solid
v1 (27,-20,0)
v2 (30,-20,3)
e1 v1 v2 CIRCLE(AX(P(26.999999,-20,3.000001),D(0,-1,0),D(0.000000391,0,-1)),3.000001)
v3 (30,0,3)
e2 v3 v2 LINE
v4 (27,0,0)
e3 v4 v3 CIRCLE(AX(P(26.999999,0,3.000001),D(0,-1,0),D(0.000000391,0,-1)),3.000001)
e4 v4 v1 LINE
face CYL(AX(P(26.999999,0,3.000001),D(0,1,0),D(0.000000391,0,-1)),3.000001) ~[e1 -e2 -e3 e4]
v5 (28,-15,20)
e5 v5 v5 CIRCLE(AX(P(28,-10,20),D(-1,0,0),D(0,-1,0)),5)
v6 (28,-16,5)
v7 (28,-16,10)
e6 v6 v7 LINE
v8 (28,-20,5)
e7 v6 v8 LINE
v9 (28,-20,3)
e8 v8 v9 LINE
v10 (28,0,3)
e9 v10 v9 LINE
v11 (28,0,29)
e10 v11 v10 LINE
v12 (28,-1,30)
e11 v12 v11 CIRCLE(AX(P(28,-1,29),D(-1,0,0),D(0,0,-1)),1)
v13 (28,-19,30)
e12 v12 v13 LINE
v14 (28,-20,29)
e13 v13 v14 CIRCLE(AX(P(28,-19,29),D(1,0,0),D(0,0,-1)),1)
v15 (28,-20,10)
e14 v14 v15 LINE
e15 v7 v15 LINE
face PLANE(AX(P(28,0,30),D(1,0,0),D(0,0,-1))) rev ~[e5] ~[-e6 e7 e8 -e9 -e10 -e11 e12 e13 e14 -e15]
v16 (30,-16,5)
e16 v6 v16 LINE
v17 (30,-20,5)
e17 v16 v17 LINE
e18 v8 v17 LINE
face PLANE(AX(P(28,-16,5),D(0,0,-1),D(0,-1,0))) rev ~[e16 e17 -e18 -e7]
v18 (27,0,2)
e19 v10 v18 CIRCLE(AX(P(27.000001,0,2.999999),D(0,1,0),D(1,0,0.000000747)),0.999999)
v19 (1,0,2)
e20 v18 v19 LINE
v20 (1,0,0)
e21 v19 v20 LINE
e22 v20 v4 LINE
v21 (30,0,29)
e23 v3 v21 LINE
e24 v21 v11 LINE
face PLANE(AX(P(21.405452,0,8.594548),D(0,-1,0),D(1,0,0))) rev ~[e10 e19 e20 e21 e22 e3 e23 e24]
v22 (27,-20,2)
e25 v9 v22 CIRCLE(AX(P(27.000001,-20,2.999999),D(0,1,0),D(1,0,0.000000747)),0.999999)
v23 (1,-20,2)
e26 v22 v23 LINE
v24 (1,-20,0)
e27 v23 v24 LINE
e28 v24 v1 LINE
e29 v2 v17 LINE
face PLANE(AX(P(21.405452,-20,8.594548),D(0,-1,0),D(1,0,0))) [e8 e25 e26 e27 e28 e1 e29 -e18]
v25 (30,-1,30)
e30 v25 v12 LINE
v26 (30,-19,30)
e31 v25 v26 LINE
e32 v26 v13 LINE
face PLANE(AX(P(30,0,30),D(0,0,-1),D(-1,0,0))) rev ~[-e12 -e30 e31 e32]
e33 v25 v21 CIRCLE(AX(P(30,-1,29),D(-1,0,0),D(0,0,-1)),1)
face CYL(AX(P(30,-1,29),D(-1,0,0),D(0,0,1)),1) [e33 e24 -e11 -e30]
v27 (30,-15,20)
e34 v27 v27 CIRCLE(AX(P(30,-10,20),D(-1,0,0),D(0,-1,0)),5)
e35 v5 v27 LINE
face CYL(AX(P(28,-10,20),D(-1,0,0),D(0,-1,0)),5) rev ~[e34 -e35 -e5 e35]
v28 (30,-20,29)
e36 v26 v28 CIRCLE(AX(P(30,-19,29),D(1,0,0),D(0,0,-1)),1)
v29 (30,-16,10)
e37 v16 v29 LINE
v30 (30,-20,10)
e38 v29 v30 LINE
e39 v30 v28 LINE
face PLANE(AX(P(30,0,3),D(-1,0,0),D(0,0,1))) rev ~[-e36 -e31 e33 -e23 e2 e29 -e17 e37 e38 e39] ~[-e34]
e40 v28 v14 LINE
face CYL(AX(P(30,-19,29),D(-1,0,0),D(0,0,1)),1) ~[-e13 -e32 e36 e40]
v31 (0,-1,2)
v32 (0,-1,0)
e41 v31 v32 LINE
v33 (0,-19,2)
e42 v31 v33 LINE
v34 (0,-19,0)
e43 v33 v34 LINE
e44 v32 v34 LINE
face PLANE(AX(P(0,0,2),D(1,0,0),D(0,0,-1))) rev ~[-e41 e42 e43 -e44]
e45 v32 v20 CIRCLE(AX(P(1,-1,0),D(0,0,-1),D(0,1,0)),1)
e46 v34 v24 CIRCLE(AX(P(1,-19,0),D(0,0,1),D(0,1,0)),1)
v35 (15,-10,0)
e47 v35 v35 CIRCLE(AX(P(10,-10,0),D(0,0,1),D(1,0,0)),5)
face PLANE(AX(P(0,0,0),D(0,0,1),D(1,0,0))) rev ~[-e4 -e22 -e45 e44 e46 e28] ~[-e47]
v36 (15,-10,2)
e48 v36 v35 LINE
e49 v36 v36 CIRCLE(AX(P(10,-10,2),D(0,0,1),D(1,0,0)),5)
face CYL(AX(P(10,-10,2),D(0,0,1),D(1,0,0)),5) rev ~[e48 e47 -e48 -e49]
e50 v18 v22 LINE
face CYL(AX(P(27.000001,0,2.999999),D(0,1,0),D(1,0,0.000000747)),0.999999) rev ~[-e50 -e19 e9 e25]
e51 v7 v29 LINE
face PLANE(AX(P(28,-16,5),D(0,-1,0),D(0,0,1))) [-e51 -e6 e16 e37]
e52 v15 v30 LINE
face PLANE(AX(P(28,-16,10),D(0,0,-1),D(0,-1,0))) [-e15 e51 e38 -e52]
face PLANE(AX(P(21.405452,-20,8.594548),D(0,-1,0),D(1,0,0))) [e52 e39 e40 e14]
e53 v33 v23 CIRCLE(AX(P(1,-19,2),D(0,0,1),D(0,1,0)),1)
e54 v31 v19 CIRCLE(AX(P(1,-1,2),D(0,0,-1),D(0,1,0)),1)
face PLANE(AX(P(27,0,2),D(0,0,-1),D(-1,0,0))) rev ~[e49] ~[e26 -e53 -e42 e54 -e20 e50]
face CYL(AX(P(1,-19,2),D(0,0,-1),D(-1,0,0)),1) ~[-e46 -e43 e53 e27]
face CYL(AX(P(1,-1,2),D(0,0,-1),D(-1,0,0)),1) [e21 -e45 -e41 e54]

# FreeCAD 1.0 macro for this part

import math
import FreeCAD as App
import Part
import Sketcher
from FreeCAD import Vector
Q = App.Units.Quantity


def edges_at(feature, points):
    """Names of the edges that pass closest to the given points."""
    edges = feature.Shape.Edges
    near = lambda p: min(range(len(edges)), key=lambda i: edges[i].distToShape(Part.Vertex(*p))[0])
    return sorted({f"Edge{near(p) + 1}" for p in points})


def add_polygon(sketch, points):
    """Adds a closed chain of lines whose ends are joined by coincident constraints."""
    first, n = sketch.GeometryCount, len(points)
    for a, b in zip(points, points[1:] + points[:1]):
        sketch.addGeometry(Part.LineSegment(App.Vector(*a, 0), App.Vector(*b, 0)), False)
    for i in range(n):
        sketch.addConstraint(Sketcher.Constraint("Coincident", first + i, 2, first + (i + 1) % n, 1))

doc = App.newDocument("Part")
body = doc.addObject("PartDesign::Body", "Body")

# Sketch on XZ plane
sketch1 = doc.addObject("Sketcher::SketchObject", "Sketch")
body.addObject(sketch1)
sketch1.AttachmentSupport = (doc.XZ_Plane, [""])
sketch1.MapMode = "FlatFace"
sketch1.addGeometry(Part.LineSegment(Vector(0, 2, 0), Vector(0, 0, 0)), False)
sketch1.addGeometry(Part.LineSegment(Vector(0, 0, 0), Vector(27, 0, 0)), False)
sketch1.addGeometry(Part.ArcOfCircle(Part.Circle(Vector(26.999999, 3.000001, 0), Vector(0, 0, 1), 3.000001), math.radians(-89.999978), math.radians(-0.000022)), False)
sketch1.addGeometry(Part.LineSegment(Vector(30, 3, 0), Vector(30, 30, 0)), False)
sketch1.addGeometry(Part.LineSegment(Vector(30, 30, 0), Vector(28, 30, 0)), False)
sketch1.addGeometry(Part.LineSegment(Vector(28, 30, 0), Vector(28, 3, 0)), False)
sketch1.addGeometry(Part.ArcOfCircle(Part.Circle(Vector(27.000001, 2.999999, 0), Vector(0, 0, 1), 0.999999), math.radians(-90.000043), math.radians(0.000043)), False)
sketch1.addGeometry(Part.LineSegment(Vector(27, 2, 0), Vector(0, 2, 0)), False)
sketch1.addConstraint(Sketcher.Constraint("Coincident", 0, 2, 1, 1))
sketch1.addConstraint(Sketcher.Constraint("Tangent", 1, 2, 2, 1))
sketch1.addConstraint(Sketcher.Constraint("Tangent", 2, 2, 3, 1))
sketch1.addConstraint(Sketcher.Constraint("Coincident", 3, 2, 4, 1))
sketch1.addConstraint(Sketcher.Constraint("Coincident", 4, 2, 5, 1))
sketch1.addConstraint(Sketcher.Constraint("Tangent", 5, 2, 6, 2))
sketch1.addConstraint(Sketcher.Constraint("Tangent", 6, 1, 7, 1))
sketch1.addConstraint(Sketcher.Constraint("Coincident", 7, 2, 0, 1))
sketch1.addConstraint(Sketcher.Constraint("Vertical", 0))
sketch1.addConstraint(Sketcher.Constraint("Horizontal", 1))
sketch1.addConstraint(Sketcher.Constraint("Vertical", 3))
sketch1.addConstraint(Sketcher.Constraint("Horizontal", 4))
sketch1.addConstraint(Sketcher.Constraint("Vertical", 5))
sketch1.addConstraint(Sketcher.Constraint("Horizontal", 7))
sketch1.addConstraint(Sketcher.Constraint("Coincident", 0, 2, -1, 1))
sketch1.addConstraint(Sketcher.Constraint("Coincident", 6, 3, 2, 3))
sketch1.addConstraint(Sketcher.Constraint("Equal", 7, 3))
sketch1.addConstraint(Sketcher.Constraint("Radius", 2, Q("3.000001 mm")))
sketch1.addConstraint(Sketcher.Constraint("Radius", 6, Q("0.999999 mm")))
sketch1.addConstraint(Sketcher.Constraint("DistanceX", 1, 1, 1, 2, Q("27 mm")))
pad1 = doc.addObject("PartDesign::Pad", "Pad")
body.addObject(pad1)
pad1.Profile = sketch1
pad1.Length = 20
doc.recompute()

fillet = doc.addObject("PartDesign::Fillet", "Fillet")
body.addObject(fillet)
fillet.Base = (pad1, edges_at(pad1, [
    (29, 0, 30),
    (29, -20, 30),
    (0, -20, 1),
    (0, 0, 1),
]))
fillet.Radius = 1

# Sketch on YZ plane
sketch2 = doc.addObject("Sketcher::SketchObject", "Sketch001")
body.addObject(sketch2)
sketch2.AttachmentSupport = (doc.YZ_Plane, [""])
sketch2.MapMode = "FlatFace"
sketch2.AttachmentOffset = App.Placement(Vector(0, 0, 28), App.Rotation())
sketch2.addGeometry(Part.Circle(Vector(-10, 20, 0), Vector(0, 0, 1), 5), False)  # 0
add_polygon(sketch2, [(-16, 10), (-16, 5), (-20, 5), (-20, 10)])  # lines 1-4
sketch2.addConstraint(Sketcher.Constraint("Vertical", 1))
sketch2.addConstraint(Sketcher.Constraint("Horizontal", 2))
sketch2.addConstraint(Sketcher.Constraint("Vertical", 3))
sketch2.addConstraint(Sketcher.Constraint("Horizontal", 4))
sketch2.addConstraint(Sketcher.Constraint("Diameter", 0, Q("10 mm")))
sketch2.addConstraint(Sketcher.Constraint("DistanceX", 2, 2, 2, 1, Q("4 mm")))
sketch2.addConstraint(Sketcher.Constraint("DistanceY", 1, 2, 1, 1, Q("5 mm")))
sketch2.addConstraint(Sketcher.Constraint("DistanceX", 0, 3, -1, 1, Q("10 mm")))
sketch2.addConstraint(Sketcher.Constraint("DistanceY", -1, 1, 0, 3, Q("20 mm")))
sketch2.addConstraint(Sketcher.Constraint("DistanceX", 1, 2, -1, 1, Q("16 mm")))
sketch2.addConstraint(Sketcher.Constraint("DistanceY", -1, 1, 1, 2, Q("5 mm")))
pocket1 = doc.addObject("PartDesign::Pocket", "Pocket")
body.addObject(pocket1)
pocket1.Profile = sketch2
pocket1.Type = "ThroughAll"
pocket1.Reversed = True

# Sketch on XY plane
sketch3 = doc.addObject("Sketcher::SketchObject", "Sketch002")
body.addObject(sketch3)
sketch3.AttachmentSupport = (doc.XY_Plane, [""])
sketch3.MapMode = "FlatFace"
sketch3.AttachmentOffset = App.Placement(Vector(0, 0, 2), App.Rotation())
sketch3.addGeometry(Part.Circle(Vector(10, -10, 0), Vector(0, 0, 1), 5), False)
sketch3.addConstraint(Sketcher.Constraint("Diameter", 0, Q("10 mm")))
sketch3.addConstraint(Sketcher.Constraint("DistanceX", -1, 1, 0, 3, Q("10 mm")))
sketch3.addConstraint(Sketcher.Constraint("DistanceY", 0, 3, -1, 1, Q("10 mm")))
pocket2 = doc.addObject("PartDesign::Pocket", "Pocket001")
body.addObject(pocket2)
pocket2.Profile = sketch3
pocket2.Type = "ThroughAll"

doc.recompute()
